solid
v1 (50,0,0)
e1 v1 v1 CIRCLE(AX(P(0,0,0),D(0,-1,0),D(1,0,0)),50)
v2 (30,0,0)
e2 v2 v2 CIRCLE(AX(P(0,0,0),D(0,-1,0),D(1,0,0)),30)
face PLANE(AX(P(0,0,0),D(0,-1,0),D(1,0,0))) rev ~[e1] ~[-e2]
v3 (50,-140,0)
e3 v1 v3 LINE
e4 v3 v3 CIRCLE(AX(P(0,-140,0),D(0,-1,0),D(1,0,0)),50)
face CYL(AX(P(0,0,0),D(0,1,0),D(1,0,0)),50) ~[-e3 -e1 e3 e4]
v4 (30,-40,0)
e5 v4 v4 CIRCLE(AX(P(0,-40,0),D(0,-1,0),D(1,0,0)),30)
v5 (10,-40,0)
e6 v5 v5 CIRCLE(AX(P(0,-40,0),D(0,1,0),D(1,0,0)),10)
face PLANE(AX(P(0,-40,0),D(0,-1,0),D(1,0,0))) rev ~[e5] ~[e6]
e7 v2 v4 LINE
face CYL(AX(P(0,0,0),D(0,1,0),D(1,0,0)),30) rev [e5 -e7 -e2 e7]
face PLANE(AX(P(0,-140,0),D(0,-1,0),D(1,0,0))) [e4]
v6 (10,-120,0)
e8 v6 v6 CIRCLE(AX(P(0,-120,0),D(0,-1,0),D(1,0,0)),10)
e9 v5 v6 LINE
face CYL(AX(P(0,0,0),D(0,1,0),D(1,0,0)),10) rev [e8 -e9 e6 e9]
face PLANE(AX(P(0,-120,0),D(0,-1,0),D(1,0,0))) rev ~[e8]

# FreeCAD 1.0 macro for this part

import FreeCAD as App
import Part
import Sketcher

doc = App.newDocument("Part")
body = doc.addObject("PartDesign::Body", "Body")

sketch1 = body.newObject("Sketcher::SketchObject", "Sketch")
sketch1.AttachmentSupport = (doc.getObject("XZ_Plane"), [""])
sketch1.MapMode = "FlatFace"
sketch1.addGeometry(Part.Circle(App.Vector(0, 0, 0), App.Vector(0, 0, 1), 50), False)
sketch1.addConstraint(Sketcher.Constraint("Coincident", 0, 3, -1, 1))
sketch1.addConstraint(Sketcher.Constraint("Diameter", 0, 100.0))
pad1 = body.newObject("PartDesign::Pad", "Pad")
pad1.Profile = sketch1
pad1.Length = 140

sketch2 = body.newObject("Sketcher::SketchObject", "Sketch001")
sketch2.AttachmentSupport = (doc.getObject("XZ_Plane"), [""])
sketch2.MapMode = "FlatFace"
sketch2.addGeometry(Part.Circle(App.Vector(0, 0, 0), App.Vector(0, 0, 1), 30), False)
sketch2.addConstraint(Sketcher.Constraint("Coincident", 0, 3, -1, 1))
sketch2.addConstraint(Sketcher.Constraint("Diameter", 0, 60.0))
pocket1 = body.newObject("PartDesign::Pocket", "Pocket")
pocket1.Profile = sketch2
pocket1.Length = 40
pocket1.Reversed = True

sketch3 = body.newObject("Sketcher::SketchObject", "Sketch002")
sketch3.AttachmentSupport = (doc.getObject("XZ_Plane"), [""])
sketch3.MapMode = "FlatFace"
sketch3.addGeometry(Part.Circle(App.Vector(0, 0, 0), App.Vector(0, 0, 1), 10), False)
sketch3.addConstraint(Sketcher.Constraint("Coincident", 0, 3, -1, 1))
sketch3.addConstraint(Sketcher.Constraint("Diameter", 0, 20.0))
pocket2 = body.newObject("PartDesign::Pocket", "Pocket001")
pocket2.Profile = sketch3
pocket2.Length = 120
pocket2.Reversed = True

doc.recompute()
